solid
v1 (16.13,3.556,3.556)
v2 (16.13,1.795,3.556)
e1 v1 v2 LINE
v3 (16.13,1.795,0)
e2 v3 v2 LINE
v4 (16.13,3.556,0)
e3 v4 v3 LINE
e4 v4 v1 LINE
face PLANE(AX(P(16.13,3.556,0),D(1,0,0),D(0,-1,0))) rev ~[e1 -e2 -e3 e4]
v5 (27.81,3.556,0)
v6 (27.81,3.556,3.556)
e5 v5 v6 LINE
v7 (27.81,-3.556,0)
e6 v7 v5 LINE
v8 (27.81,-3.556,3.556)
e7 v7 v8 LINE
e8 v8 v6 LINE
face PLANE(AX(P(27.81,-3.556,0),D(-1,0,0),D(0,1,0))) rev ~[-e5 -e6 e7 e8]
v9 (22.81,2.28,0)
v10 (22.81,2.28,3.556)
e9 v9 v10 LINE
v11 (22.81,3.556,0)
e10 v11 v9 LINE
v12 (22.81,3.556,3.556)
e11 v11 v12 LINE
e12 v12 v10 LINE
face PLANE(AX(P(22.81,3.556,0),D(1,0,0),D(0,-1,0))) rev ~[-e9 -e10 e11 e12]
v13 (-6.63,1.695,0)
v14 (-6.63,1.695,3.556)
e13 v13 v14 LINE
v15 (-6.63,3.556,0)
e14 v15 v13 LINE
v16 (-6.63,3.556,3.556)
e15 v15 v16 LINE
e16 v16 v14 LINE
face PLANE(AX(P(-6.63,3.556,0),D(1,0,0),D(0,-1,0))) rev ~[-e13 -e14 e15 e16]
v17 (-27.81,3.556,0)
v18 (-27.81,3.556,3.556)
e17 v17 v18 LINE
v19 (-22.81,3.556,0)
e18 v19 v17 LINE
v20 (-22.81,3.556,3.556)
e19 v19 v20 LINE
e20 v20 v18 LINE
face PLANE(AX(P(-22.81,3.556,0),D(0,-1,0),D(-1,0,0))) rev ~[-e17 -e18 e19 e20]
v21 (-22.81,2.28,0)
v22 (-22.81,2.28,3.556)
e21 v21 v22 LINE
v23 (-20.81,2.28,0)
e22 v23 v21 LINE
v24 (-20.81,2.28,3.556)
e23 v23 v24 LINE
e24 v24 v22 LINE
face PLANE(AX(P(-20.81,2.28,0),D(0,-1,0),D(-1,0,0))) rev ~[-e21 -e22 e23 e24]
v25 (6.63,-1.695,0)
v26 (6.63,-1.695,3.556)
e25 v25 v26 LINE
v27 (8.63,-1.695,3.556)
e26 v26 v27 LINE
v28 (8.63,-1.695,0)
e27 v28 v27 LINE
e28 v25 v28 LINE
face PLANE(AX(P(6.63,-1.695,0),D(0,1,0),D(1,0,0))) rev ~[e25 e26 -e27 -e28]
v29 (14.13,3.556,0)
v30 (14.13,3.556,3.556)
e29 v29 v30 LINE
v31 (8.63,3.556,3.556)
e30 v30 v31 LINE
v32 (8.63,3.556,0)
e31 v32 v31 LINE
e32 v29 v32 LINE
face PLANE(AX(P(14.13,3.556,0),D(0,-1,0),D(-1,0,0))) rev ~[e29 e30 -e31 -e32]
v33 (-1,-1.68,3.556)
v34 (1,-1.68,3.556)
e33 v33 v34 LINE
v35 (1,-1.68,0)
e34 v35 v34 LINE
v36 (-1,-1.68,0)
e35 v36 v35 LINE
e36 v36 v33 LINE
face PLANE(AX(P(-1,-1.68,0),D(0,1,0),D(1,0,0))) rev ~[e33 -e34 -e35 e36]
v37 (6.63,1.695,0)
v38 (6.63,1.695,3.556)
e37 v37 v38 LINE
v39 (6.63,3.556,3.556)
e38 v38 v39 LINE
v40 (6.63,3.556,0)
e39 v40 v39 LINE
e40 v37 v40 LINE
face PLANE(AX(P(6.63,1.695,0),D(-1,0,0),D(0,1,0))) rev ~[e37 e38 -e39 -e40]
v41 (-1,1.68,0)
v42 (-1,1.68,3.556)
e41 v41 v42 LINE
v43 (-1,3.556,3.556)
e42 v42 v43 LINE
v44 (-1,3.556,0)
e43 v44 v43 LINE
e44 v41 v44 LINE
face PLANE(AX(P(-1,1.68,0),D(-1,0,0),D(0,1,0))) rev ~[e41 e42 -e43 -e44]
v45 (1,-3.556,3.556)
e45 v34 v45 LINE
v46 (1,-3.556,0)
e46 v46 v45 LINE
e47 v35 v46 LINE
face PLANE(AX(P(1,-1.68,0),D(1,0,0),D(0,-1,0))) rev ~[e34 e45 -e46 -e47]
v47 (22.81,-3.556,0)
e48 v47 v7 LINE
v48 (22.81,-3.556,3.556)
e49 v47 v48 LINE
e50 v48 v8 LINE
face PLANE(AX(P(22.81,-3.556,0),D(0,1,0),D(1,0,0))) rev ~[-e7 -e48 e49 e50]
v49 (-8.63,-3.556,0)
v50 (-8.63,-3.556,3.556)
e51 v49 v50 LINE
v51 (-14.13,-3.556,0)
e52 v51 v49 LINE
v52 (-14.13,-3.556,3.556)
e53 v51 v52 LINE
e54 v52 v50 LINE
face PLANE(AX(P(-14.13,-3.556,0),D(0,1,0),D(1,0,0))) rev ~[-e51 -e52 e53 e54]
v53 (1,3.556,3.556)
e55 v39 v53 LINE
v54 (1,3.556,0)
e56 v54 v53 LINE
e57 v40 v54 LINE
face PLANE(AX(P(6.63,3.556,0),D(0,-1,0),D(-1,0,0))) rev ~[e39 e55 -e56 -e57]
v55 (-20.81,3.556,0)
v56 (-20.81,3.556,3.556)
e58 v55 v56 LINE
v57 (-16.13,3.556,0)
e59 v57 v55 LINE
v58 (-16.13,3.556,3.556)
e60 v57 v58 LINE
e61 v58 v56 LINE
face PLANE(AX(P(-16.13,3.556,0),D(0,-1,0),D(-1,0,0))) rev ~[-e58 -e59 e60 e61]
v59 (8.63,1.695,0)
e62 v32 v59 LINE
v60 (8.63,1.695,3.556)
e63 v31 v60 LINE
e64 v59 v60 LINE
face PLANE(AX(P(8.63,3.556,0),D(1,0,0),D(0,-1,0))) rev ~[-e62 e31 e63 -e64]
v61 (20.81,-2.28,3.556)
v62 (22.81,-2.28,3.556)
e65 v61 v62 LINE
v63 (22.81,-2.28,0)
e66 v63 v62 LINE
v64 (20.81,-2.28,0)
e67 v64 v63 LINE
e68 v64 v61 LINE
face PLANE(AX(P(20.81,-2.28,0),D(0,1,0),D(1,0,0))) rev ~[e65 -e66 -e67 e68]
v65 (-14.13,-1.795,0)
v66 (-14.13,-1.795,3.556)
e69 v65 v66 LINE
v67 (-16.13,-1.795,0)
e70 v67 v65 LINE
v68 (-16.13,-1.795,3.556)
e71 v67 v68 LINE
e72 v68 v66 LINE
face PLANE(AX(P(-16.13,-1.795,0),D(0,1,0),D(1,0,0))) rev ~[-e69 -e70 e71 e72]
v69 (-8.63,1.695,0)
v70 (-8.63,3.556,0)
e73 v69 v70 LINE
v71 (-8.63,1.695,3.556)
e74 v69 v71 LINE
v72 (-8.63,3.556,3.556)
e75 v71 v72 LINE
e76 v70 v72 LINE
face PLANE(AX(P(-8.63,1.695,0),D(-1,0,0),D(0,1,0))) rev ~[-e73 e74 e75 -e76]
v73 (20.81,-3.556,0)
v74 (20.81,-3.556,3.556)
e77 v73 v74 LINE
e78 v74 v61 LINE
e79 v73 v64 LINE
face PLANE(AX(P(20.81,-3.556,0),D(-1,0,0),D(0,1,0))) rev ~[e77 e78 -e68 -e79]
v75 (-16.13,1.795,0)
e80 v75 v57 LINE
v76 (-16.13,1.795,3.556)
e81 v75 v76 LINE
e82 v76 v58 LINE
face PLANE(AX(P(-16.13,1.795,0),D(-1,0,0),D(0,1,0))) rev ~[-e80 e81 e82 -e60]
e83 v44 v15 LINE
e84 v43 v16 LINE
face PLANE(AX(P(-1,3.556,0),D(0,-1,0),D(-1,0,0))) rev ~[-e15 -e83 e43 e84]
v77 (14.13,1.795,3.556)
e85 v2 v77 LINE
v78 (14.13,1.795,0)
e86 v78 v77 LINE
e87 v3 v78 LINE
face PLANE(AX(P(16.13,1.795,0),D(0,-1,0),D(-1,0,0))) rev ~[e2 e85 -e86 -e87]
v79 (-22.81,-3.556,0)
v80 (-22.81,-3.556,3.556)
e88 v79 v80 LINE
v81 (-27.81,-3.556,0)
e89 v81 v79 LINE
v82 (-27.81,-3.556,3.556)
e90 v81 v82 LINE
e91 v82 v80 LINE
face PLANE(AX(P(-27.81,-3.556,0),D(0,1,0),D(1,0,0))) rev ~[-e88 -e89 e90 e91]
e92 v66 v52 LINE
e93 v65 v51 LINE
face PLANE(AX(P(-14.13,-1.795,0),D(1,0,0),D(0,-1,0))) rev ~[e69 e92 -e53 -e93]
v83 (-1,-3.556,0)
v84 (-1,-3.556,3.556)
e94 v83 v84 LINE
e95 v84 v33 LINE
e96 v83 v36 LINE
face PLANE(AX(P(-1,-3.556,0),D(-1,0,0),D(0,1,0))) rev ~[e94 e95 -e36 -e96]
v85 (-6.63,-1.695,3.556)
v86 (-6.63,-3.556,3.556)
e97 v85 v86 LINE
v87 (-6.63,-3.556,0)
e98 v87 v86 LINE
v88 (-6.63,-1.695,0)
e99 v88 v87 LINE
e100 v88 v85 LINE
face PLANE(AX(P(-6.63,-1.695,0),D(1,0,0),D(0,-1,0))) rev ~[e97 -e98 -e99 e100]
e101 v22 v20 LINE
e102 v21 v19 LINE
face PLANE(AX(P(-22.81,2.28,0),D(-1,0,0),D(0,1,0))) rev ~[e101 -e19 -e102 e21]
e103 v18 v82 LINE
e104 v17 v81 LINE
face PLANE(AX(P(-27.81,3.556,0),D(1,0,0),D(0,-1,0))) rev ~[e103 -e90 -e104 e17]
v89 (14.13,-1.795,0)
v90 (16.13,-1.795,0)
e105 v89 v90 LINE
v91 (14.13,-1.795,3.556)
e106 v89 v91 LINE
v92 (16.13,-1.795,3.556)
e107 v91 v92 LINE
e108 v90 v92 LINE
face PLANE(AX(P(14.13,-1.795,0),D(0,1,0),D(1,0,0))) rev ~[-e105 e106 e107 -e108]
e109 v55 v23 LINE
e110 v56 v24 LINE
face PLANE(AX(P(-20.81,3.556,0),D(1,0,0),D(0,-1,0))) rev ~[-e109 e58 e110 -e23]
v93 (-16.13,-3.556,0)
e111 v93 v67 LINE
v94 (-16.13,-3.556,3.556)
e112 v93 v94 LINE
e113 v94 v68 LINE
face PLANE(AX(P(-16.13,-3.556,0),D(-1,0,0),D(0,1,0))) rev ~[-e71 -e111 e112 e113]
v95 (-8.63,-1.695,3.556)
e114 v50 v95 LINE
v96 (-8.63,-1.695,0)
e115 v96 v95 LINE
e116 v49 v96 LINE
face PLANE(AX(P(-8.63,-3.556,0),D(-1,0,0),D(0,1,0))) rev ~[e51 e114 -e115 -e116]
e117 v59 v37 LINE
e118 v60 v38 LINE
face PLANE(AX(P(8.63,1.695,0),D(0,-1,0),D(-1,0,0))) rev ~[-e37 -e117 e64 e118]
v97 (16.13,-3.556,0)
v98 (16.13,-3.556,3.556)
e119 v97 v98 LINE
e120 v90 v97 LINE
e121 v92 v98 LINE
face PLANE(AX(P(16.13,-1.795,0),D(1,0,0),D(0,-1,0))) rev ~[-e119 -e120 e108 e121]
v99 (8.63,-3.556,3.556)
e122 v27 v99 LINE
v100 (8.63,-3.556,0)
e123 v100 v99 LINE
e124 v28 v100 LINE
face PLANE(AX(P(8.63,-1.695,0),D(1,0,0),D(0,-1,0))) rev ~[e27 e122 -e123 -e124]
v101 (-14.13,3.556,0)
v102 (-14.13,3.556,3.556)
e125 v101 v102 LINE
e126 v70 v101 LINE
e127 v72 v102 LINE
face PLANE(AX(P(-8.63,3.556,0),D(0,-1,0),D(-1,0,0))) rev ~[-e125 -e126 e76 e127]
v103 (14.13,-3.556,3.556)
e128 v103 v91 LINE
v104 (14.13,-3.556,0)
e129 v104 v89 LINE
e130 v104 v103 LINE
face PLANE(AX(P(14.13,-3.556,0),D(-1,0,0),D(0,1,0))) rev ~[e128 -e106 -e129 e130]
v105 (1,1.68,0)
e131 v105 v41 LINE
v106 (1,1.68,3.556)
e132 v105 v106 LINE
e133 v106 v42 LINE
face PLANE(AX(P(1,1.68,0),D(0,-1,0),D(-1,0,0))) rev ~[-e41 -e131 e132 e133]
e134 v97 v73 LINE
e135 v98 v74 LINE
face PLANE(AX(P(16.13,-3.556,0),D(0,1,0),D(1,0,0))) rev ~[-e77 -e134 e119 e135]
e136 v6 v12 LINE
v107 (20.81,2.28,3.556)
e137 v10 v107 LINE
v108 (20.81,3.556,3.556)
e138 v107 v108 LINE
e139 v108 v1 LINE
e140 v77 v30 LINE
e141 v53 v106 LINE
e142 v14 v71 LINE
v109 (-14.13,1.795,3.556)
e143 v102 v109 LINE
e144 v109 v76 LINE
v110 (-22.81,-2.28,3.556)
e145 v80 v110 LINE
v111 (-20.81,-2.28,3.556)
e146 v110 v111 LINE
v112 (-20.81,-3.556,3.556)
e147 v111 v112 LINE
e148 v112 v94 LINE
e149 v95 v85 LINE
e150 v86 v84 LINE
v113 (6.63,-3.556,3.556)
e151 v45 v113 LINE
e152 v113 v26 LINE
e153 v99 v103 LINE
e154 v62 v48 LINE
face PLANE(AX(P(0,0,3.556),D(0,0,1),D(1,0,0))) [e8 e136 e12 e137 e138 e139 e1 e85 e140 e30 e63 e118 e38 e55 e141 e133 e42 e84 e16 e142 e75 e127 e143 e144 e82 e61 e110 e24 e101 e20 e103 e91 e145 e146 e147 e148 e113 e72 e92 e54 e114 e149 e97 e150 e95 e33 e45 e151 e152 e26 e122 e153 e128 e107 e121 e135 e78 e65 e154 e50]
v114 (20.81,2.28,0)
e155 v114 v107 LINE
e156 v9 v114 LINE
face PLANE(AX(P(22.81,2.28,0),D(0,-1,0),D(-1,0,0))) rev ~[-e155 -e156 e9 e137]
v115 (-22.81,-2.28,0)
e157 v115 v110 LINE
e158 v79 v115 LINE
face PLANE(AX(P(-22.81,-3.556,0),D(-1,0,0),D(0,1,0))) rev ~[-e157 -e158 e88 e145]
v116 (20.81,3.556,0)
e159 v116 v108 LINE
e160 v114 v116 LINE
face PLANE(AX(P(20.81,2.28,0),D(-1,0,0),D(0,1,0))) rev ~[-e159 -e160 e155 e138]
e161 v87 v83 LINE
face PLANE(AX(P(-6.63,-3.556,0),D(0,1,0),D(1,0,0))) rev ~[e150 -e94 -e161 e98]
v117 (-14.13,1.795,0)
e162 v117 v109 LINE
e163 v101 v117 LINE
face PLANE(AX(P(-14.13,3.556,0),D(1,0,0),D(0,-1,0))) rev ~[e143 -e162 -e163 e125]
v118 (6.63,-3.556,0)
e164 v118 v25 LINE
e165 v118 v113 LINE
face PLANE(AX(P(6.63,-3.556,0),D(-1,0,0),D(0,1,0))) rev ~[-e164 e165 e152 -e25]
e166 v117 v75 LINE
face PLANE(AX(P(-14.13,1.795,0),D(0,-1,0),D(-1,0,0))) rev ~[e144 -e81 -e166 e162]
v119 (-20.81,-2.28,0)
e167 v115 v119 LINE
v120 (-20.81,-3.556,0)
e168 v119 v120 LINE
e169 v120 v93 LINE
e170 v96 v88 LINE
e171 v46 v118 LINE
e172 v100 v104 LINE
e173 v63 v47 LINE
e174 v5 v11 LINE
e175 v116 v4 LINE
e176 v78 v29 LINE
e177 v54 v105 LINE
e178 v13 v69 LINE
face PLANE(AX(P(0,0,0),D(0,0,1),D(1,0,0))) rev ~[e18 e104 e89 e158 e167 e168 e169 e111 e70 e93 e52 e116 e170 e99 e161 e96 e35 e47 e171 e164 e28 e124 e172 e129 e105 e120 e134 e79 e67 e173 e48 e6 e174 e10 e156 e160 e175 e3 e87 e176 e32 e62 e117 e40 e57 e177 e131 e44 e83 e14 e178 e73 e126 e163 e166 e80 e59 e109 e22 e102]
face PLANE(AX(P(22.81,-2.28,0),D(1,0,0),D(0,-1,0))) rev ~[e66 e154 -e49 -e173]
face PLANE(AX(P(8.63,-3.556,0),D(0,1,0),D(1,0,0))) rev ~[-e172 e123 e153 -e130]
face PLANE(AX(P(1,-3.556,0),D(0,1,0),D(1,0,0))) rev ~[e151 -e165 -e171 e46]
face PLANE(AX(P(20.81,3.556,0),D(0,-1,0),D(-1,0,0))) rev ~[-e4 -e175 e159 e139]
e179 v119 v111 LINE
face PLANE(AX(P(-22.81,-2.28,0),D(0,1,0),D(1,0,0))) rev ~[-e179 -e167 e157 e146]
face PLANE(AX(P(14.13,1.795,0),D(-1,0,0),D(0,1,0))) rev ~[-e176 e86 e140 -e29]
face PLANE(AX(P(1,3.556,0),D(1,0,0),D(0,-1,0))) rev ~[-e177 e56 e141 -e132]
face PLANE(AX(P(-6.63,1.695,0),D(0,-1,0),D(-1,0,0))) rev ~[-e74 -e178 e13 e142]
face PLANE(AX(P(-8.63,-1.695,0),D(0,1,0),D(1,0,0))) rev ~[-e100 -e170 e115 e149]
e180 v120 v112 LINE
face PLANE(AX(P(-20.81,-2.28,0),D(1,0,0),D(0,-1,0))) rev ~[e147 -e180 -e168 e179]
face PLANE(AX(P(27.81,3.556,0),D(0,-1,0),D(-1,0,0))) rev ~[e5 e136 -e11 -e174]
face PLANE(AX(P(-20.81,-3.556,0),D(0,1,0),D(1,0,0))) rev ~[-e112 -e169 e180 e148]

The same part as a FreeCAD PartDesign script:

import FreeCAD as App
import Part
import Sketcher
Q = App.Units.Quantity


def add_polygon(sketch, points):
    """Adds a closed chain of lines whose ends are joined by coincident constraints."""
    first, n = sketch.GeometryCount, len(points)
    for a, b in zip(points, points[1:] + points[:1]):
        sketch.addGeometry(Part.LineSegment(App.Vector(*a, 0), App.Vector(*b, 0)), False)
    for i in range(n):
        sketch.addConstraint(Sketcher.Constraint("Coincident", first + i, 2, first + (i + 1) % n, 1))

doc = App.newDocument("Part")
body = doc.addObject("PartDesign::Body", "Body")

# Sketch on XY plane
sketch1 = doc.addObject("Sketcher::SketchObject", "Sketch")
body.addObject(sketch1)
sketch1.AttachmentSupport = (doc.XY_Plane, [""])
sketch1.MapMode = "FlatFace"
add_polygon(sketch1, [(27.8, -3.6), (27.8, 3.6), (22.8, 3.6), (22.8, 2.3), (20.8, 2.3), (20.8, 3.6), (16.1, 3.6), (16.1, 1.8), (14.1, 1.8), (14.1, 3.6), (8.6, 3.6), (8.6, 1.7), (6.6, 1.7), (6.6, 3.6), (1, 3.6), (1, 1.7), (-1, 1.7), (-1, 3.6), (-6.6, 3.6), (-6.6, 1.7), (-8.6, 1.7), (-8.6, 3.6), (-14.1, 3.6), (-14.1, 1.8), (-16.1, 1.8), (-16.1, 3.6), (-20.8, 3.6), (-20.8, 2.3), (-22.8, 2.3), (-22.8, 3.6), (-27.8, 3.6), (-27.8, -3.6), (-22.8, -3.6), (-22.8, -2.3), (-20.8, -2.3), (-20.8, -3.6), (-16.1, -3.6), (-16.1, -1.8), (-14.1, -1.8), (-14.1, -3.6), (-8.6, -3.6), (-8.6, -1.7), (-6.6, -1.7), (-6.6, -3.6), (-1, -3.6), (-1, -1.7), (1, -1.7), (1, -3.6), (6.6, -3.6), (6.6, -1.7), (8.6, -1.7), (8.6, -3.6), (14.1, -3.6), (14.1, -1.8), (16.1, -1.8), (16.1, -3.6), (20.8, -3.6), (20.8, -2.3), (22.8, -2.3), (22.8, -3.6)])  # lines 0-59
sketch1.addConstraint([
    Sketcher.Constraint("Vertical", 0),
    Sketcher.Constraint("Horizontal", 1),
    Sketcher.Constraint("Vertical", 2),
    Sketcher.Constraint("Horizontal", 3),
    Sketcher.Constraint("Vertical", 4),
    Sketcher.Constraint("Horizontal", 5),
    Sketcher.Constraint("Vertical", 6),
    Sketcher.Constraint("Horizontal", 7),
    Sketcher.Constraint("Vertical", 8),
    Sketcher.Constraint("Horizontal", 9),
    Sketcher.Constraint("Vertical", 10),
    Sketcher.Constraint("Horizontal", 11),
    Sketcher.Constraint("Vertical", 12),
    Sketcher.Constraint("Horizontal", 13),
    Sketcher.Constraint("Vertical", 14),
    Sketcher.Constraint("Horizontal", 15),
    Sketcher.Constraint("Vertical", 16),
    Sketcher.Constraint("Horizontal", 17),
    Sketcher.Constraint("Vertical", 18),
    Sketcher.Constraint("Horizontal", 19),
    Sketcher.Constraint("Vertical", 20),
    Sketcher.Constraint("Horizontal", 21),
    Sketcher.Constraint("Vertical", 22),
    Sketcher.Constraint("Horizontal", 23),
    Sketcher.Constraint("Vertical", 24),
    Sketcher.Constraint("Horizontal", 25),
    Sketcher.Constraint("Vertical", 26),
    Sketcher.Constraint("Horizontal", 27),
    Sketcher.Constraint("Vertical", 28),
    Sketcher.Constraint("Horizontal", 29),
    Sketcher.Constraint("Vertical", 30),
    Sketcher.Constraint("Horizontal", 31),
    Sketcher.Constraint("Vertical", 32),
    Sketcher.Constraint("Horizontal", 33),
    Sketcher.Constraint("Vertical", 34),
    Sketcher.Constraint("Horizontal", 35),
    Sketcher.Constraint("Vertical", 36),
    Sketcher.Constraint("Horizontal", 37),
    Sketcher.Constraint("Vertical", 38),
    Sketcher.Constraint("Horizontal", 39),
    Sketcher.Constraint("Vertical", 40),
    Sketcher.Constraint("Horizontal", 41),
    Sketcher.Constraint("Vertical", 42),
    Sketcher.Constraint("Horizontal", 43),
    Sketcher.Constraint("Vertical", 44),
    Sketcher.Constraint("Horizontal", 45),
    Sketcher.Constraint("Vertical", 46),
    Sketcher.Constraint("Horizontal", 47),
    Sketcher.Constraint("Vertical", 48),
    Sketcher.Constraint("Horizontal", 49),
    Sketcher.Constraint("Vertical", 50),
    Sketcher.Constraint("Horizontal", 51),
    Sketcher.Constraint("Vertical", 52),
    Sketcher.Constraint("Horizontal", 53),
    Sketcher.Constraint("Vertical", 54),
    Sketcher.Constraint("Horizontal", 55),
    Sketcher.Constraint("Vertical", 56),
    Sketcher.Constraint("Horizontal", 57),
    Sketcher.Constraint("Vertical", 58),
    Sketcher.Constraint("Horizontal", 59),
    Sketcher.Constraint("Symmetric", 0, 2, 30, 2, -1, 1),
    Sketcher.Constraint("Symmetric", 2, 2, 32, 2, -1, 1),
    Sketcher.Constraint("Symmetric", 4, 2, 34, 2, -1, 1),
    Sketcher.Constraint("Symmetric", 6, 2, 36, 2, -1, 1),
    Sketcher.Constraint("Symmetric", 8, 2, 38, 2, -1, 1),
    Sketcher.Constraint("Symmetric", 10, 2, 40, 2, -1, 1),
    Sketcher.Constraint("Symmetric", 12, 2, 42, 2, -1, 1),
    Sketcher.Constraint("Symmetric", 14, 2, 44, 2, -1, 1),
    Sketcher.Constraint("Symmetric", 16, 2, 46, 2, -1, 1),
    Sketcher.Constraint("Symmetric", 18, 2, 48, 2, -1, 1),
    Sketcher.Constraint("Symmetric", 20, 2, 50, 2, -1, 1),
    Sketcher.Constraint("Symmetric", 22, 2, 52, 2, -1, 1),
    Sketcher.Constraint("Symmetric", 24, 2, 54, 2, -1, 1),
    Sketcher.Constraint("Symmetric", 26, 2, 56, 2, -1, 1),
    Sketcher.Constraint("Symmetric", 28, 2, 58, 2, -1, 1),
    Sketcher.Constraint("Symmetric", 13, 2, 16, 2, -2),
    Sketcher.Constraint("Symmetric", 11, 2, 18, 2, -2),
    Sketcher.Constraint("Symmetric", 9, 2, 20, 2, -2),
    Sketcher.Constraint("Symmetric", 7, 2, 22, 2, -2),
    Sketcher.Constraint("Symmetric", 5, 2, 24, 2, -2),
    Sketcher.Constraint("Symmetric", 3, 2, 26, 2, -2),
    Sketcher.Constraint("Symmetric", 1, 2, 28, 2, -2),
    Sketcher.Constraint("Horizontal", 1, 2, 4, 2),
    Sketcher.Constraint("Horizontal", 5, 2, 8, 2),
    Sketcher.Constraint("Horizontal", 9, 2, 12, 2),
    Sketcher.Constraint("Equal", 3, 7),
    Sketcher.Constraint("Equal", 7, 11),
    Sketcher.Constraint("Equal", 11, 15),
    Sketcher.Constraint("DistanceX", 1, 2, 1, 1, Q("5 mm")),
    Sketcher.Constraint("DistanceX", 3, 2, 3, 1, Q("2 mm")),
    Sketcher.Constraint("DistanceX", 9, 2, 9, 1, Q("5.5 mm")),
    Sketcher.Constraint("DistanceX", 5, 2, 5, 1, Q("4.68 mm")),
    Sketcher.Constraint("DistanceX", 13, 2, 13, 1, Q("5.63 mm")),
    Sketcher.Constraint("DistanceY", 10, 2, 7, 2, Q("0.1 mm")),
    Sketcher.Constraint("DistanceY", 0, 1, 0, 2, Q("7.112 mm")),
    Sketcher.Constraint("DistanceY", 2, 2, 2, 1, Q("1.276 mm")),
    Sketcher.Constraint("DistanceY", 6, 2, 6, 1, Q("1.761 mm")),
    Sketcher.Constraint("DistanceY", 14, 2, 14, 1, Q("1.876 mm")),
])
pad1 = doc.addObject("PartDesign::Pad", "Pad")
body.addObject(pad1)
pad1.Profile = sketch1
pad1.Length = 3.556

doc.recompute()
